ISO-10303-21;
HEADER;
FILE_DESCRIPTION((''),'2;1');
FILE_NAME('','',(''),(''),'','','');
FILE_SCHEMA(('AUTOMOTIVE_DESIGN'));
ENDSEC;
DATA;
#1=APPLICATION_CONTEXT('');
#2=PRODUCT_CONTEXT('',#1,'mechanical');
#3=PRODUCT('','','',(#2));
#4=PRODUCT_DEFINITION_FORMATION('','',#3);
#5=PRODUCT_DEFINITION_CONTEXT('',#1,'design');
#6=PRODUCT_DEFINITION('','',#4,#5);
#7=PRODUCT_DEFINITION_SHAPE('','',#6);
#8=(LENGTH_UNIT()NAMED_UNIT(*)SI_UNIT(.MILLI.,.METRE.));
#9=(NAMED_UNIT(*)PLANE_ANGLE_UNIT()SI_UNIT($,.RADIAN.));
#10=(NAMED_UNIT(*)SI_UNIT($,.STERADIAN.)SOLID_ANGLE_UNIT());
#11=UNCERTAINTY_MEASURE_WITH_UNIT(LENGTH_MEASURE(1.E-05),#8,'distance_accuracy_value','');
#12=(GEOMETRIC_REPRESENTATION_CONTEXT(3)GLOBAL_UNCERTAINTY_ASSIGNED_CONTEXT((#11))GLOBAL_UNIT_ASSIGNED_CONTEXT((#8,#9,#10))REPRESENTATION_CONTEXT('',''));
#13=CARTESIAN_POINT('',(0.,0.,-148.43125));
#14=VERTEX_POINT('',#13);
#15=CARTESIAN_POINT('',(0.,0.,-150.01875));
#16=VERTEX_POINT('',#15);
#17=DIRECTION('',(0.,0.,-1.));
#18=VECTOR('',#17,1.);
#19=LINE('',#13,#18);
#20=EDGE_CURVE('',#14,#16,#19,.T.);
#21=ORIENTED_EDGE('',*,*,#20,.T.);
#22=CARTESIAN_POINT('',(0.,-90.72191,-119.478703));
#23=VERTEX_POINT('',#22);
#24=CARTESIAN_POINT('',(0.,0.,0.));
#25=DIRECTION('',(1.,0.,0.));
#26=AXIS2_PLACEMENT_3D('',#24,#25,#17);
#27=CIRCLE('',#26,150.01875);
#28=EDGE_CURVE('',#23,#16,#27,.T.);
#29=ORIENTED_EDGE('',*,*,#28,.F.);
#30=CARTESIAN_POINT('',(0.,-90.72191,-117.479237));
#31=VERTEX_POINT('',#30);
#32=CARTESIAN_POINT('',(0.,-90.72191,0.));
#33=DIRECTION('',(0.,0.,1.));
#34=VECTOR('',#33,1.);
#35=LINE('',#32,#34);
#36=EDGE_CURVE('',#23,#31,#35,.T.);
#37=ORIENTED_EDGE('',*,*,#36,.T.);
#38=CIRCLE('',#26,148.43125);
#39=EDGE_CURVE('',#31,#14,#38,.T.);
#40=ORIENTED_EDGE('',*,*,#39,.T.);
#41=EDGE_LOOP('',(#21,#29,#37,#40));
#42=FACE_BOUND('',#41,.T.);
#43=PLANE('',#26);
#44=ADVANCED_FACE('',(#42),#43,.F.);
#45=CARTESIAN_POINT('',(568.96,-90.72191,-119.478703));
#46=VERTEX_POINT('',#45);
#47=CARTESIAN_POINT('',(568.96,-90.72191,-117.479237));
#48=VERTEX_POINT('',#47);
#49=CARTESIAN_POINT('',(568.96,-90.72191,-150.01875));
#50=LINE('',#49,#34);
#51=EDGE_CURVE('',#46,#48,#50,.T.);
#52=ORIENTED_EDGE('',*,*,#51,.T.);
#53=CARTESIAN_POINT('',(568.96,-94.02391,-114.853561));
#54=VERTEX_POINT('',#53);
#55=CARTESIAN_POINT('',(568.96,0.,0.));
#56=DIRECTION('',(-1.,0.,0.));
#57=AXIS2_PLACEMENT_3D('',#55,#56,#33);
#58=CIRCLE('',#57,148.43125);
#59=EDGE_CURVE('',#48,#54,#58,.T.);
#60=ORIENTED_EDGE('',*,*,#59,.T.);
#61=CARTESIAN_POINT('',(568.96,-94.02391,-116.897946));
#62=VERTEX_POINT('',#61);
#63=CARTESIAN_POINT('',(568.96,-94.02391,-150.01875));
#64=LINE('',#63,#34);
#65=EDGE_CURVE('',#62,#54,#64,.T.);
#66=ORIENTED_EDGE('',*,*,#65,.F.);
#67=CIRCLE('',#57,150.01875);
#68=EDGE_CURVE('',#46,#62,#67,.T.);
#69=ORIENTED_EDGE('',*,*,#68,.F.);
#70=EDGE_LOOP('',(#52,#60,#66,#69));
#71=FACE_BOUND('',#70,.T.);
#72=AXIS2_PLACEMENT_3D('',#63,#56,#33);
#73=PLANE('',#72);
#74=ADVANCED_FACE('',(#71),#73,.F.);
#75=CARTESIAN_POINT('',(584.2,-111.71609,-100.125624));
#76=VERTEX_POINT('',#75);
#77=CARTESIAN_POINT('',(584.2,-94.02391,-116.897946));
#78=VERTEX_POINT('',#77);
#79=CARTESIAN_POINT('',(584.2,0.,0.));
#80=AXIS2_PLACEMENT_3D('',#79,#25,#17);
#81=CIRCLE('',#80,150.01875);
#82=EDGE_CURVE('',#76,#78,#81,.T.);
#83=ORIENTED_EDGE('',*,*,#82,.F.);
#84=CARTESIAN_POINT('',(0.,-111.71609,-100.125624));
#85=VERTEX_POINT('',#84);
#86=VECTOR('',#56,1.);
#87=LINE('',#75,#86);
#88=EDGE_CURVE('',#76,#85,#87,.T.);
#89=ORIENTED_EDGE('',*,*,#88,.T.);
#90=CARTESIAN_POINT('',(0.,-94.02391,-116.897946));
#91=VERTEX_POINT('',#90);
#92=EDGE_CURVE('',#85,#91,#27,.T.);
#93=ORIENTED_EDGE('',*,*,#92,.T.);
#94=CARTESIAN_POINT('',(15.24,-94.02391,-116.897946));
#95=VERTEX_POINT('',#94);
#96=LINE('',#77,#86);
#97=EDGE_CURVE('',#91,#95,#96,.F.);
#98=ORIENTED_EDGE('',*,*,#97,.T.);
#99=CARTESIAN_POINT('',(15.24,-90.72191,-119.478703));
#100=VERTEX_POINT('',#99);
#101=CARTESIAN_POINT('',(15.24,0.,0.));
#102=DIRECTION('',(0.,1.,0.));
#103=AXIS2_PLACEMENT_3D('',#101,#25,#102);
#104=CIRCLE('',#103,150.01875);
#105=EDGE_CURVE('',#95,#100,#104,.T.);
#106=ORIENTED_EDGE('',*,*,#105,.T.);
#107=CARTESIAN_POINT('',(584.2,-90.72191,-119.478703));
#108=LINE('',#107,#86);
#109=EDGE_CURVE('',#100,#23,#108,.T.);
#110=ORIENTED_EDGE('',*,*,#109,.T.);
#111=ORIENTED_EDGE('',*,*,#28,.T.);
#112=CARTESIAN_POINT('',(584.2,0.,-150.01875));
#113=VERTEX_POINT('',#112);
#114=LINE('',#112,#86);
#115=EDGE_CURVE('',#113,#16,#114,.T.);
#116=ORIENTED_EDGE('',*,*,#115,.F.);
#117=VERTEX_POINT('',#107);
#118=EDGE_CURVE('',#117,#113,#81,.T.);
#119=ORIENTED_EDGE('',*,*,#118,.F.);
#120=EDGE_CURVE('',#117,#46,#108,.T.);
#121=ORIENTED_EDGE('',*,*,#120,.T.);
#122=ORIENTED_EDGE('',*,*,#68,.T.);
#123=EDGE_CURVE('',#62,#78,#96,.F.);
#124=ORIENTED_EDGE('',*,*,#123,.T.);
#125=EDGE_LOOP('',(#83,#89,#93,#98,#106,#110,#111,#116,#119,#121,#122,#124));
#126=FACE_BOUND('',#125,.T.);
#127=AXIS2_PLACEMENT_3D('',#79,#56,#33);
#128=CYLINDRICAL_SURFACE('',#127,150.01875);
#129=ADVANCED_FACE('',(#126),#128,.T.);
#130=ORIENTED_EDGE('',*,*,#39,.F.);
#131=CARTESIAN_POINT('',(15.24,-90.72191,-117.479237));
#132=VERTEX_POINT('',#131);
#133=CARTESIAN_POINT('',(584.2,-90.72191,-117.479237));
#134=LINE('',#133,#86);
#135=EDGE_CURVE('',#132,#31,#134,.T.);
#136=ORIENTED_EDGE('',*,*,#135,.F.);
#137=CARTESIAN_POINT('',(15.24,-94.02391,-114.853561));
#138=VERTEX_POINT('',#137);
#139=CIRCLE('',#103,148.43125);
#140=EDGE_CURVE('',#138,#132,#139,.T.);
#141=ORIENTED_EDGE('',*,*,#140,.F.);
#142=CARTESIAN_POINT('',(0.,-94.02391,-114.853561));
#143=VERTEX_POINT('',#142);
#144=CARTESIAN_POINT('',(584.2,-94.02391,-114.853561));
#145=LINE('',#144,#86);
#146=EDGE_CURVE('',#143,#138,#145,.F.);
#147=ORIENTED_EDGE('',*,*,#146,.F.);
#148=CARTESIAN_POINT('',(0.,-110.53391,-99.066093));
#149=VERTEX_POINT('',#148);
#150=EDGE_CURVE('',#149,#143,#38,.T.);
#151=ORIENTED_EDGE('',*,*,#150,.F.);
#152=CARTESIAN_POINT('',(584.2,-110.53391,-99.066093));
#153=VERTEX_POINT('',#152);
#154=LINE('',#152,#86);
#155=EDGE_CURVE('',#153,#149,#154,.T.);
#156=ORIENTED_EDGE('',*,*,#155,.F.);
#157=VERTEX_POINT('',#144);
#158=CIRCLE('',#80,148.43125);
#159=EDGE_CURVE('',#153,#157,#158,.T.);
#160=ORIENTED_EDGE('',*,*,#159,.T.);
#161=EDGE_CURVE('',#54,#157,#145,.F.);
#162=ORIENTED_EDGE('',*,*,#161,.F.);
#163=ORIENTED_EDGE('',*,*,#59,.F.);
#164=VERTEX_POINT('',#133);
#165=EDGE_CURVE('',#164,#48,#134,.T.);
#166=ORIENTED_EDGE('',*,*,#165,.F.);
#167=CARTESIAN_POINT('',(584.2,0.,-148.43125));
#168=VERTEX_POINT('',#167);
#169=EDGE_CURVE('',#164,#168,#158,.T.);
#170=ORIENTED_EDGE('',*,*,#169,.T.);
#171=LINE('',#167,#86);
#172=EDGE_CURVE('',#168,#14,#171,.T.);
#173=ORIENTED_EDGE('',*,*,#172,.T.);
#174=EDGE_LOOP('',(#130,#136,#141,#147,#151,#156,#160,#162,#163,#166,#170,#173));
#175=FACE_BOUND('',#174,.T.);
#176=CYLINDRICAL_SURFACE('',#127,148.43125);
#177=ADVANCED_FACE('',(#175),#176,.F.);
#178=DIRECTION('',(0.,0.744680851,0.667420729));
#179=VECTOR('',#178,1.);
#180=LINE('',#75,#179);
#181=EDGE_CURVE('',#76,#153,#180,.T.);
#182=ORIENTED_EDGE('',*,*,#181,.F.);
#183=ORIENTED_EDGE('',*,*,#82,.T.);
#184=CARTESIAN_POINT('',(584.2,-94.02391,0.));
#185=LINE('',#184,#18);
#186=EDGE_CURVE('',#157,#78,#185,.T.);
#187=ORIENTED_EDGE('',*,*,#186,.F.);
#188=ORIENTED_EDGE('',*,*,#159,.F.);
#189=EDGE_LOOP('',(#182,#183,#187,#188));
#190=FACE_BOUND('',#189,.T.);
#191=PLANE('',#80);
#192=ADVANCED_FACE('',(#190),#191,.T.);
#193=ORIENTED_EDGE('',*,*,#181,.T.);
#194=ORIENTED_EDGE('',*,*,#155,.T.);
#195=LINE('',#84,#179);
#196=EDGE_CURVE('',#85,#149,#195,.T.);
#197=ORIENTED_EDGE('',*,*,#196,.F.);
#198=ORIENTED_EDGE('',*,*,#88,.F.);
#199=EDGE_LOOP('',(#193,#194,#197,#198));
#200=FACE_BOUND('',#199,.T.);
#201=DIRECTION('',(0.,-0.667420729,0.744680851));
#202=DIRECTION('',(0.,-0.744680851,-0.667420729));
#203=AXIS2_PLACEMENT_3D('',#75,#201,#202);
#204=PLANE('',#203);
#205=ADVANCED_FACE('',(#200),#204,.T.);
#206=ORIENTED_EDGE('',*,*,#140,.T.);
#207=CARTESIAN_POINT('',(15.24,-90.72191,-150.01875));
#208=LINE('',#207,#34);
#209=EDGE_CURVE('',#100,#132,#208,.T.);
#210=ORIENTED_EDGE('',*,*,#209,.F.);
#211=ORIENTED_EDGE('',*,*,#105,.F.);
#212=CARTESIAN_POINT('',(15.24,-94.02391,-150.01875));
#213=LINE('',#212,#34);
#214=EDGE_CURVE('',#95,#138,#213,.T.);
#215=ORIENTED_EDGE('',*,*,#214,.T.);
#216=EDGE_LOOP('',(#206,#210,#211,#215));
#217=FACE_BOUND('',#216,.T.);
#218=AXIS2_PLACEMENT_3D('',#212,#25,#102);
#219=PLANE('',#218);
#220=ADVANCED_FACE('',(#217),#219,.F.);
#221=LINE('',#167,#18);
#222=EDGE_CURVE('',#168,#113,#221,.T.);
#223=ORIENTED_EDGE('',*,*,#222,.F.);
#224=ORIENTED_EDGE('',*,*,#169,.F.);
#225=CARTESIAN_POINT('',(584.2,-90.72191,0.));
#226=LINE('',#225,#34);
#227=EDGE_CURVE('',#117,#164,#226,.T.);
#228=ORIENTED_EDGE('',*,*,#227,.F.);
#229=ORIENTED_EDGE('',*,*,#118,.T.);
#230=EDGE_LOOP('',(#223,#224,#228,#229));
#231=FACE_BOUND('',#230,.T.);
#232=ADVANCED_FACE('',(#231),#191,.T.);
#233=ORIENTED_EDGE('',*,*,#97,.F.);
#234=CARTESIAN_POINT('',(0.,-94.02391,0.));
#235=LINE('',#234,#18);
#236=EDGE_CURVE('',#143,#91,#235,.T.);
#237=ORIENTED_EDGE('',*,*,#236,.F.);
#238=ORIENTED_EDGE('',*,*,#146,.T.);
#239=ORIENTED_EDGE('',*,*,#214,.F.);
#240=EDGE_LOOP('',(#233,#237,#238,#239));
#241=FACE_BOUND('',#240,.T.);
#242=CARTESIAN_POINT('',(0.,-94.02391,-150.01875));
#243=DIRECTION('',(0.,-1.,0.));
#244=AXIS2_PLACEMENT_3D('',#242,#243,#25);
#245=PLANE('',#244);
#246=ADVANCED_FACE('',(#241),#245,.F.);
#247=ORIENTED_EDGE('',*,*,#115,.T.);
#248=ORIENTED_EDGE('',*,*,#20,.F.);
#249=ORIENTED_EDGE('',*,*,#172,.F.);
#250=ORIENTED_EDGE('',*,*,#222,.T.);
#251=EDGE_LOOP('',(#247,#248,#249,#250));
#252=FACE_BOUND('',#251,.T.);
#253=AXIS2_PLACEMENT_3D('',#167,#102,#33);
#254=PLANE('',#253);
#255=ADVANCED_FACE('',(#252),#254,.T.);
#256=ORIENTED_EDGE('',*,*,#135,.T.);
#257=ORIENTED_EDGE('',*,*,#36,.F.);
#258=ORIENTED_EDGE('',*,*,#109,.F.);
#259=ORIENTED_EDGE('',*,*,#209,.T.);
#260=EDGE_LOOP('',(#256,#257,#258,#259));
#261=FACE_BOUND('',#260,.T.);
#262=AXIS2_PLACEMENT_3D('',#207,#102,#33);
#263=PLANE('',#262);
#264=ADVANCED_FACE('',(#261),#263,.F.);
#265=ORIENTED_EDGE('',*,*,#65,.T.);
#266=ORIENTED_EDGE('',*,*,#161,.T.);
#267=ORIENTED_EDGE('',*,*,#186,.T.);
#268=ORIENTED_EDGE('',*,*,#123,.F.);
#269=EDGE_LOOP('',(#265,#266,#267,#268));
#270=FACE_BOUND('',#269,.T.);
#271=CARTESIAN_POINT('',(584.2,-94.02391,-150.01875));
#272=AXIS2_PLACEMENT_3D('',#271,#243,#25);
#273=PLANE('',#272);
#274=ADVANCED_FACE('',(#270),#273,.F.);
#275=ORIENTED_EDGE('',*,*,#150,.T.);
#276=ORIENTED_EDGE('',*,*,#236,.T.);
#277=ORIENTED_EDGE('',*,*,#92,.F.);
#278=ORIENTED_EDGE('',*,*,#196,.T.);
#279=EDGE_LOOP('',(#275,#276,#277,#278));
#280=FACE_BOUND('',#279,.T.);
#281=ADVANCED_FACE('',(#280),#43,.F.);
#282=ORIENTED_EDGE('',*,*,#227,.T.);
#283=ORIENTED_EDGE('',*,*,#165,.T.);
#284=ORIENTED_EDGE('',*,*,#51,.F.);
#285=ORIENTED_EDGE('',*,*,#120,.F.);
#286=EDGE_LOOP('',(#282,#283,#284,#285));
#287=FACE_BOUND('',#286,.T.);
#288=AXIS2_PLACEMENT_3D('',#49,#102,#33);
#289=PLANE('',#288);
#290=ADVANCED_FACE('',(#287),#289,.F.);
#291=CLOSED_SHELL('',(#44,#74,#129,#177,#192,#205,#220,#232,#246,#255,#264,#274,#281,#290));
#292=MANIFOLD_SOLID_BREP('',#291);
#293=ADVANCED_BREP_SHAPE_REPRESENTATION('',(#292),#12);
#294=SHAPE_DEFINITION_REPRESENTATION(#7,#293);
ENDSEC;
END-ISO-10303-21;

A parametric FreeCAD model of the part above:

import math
import FreeCAD as App
import Part
import Sketcher
Q = App.Units.Quantity

doc = App.newDocument("Part")
body = doc.addObject("PartDesign::Body", "Body")

# Sketch on YZ plane
sketch1 = body.newObject("Sketcher::SketchObject", "Sketch")
sketch1.AttachmentSupport = (doc.getObject("YZ_Plane"), [""])
sketch1.MapMode = "FlatFace"
sketch1.addGeometry([
    Part.ArcOfCircle(Part.Circle(App.Vector(0, 0, 0), App.Vector(0, 0, 1), 150.01875), math.radians(-138.131694), math.radians(-90)),
    Part.LineSegment(App.Vector(0, -150.01875, 0), App.Vector(0, -148.43125, 0)),
    Part.ArcOfCircle(Part.Circle(App.Vector(0, 0, 0), App.Vector(0, 0, 1), 148.43125), math.radians(-138.131694), math.radians(-90)),
    Part.LineSegment(App.Vector(-110.53391, -99.066093, 0), App.Vector(-111.71609, -100.125624, 0)),
], False)
sketch1.addConstraint([
    Sketcher.Constraint("Coincident", 0, 2, 1, 1),
    Sketcher.Constraint("Coincident", 1, 2, 2, 2),
    Sketcher.Constraint("Coincident", 2, 1, 3, 1),
    Sketcher.Constraint("Coincident", 3, 2, 0, 1),
    Sketcher.Constraint("Vertical", 1),
    Sketcher.Constraint("Coincident", 0, 3, -1, 1),
    Sketcher.Constraint("Coincident", 2, 3, -1, 1),
    Sketcher.Constraint("PointOnObject", 0, 2, -2),
    Sketcher.Constraint("Radius", 0, Q("5.90625 in")),
    Sketcher.Constraint("Radius", 2, Q("5.84375 in")),
    Sketcher.Constraint("DistanceX", 2, 1, -1, 1, 110.53391),
    Sketcher.Constraint("DistanceX", 3, 2, -1, 1, 111.71609),
])
pad1 = body.newObject("PartDesign::Pad", "Pad")
pad1.Profile = sketch1
pad1.Length = Q("23 in")

# Sketch on XY plane
sketch2 = body.newObject("Sketcher::SketchObject", "Sketch001")
sketch2.AttachmentSupport = (doc.getObject("XY_Plane"), [""])
sketch2.MapMode = "FlatFace"
sketch2.addGeometry([
    Part.LineSegment(App.Vector(0, -90.72191, 0), App.Vector(0, -94.02391, 0)),  # 0
    Part.LineSegment(App.Vector(0, -94.02391, 0), App.Vector(15.24, -94.02391, 0)),  # 1
    Part.LineSegment(App.Vector(15.24, -94.02391, 0), App.Vector(15.24, -90.72191, 0)),  # 2
    Part.LineSegment(App.Vector(15.24, -90.72191, 0), App.Vector(0, -90.72191, 0)),  # 3
    Part.LineSegment(App.Vector(568.96, -90.72191, 0), App.Vector(568.96, -94.02391, 0)),  # 4
    Part.LineSegment(App.Vector(568.96, -94.02391, 0), App.Vector(584.2, -94.02391, 0)),  # 5
    Part.LineSegment(App.Vector(584.2, -94.02391, 0), App.Vector(584.2, -90.72191, 0)),  # 6
    Part.LineSegment(App.Vector(584.2, -90.72191, 0), App.Vector(568.96, -90.72191, 0)),  # 7
], False)
sketch2.addConstraint([
    Sketcher.Constraint("Coincident", 0, 2, 1, 1),
    Sketcher.Constraint("Coincident", 1, 2, 2, 1),
    Sketcher.Constraint("Coincident", 2, 2, 3, 1),
    Sketcher.Constraint("Coincident", 3, 2, 0, 1),
    Sketcher.Constraint("Coincident", 4, 2, 5, 1),
    Sketcher.Constraint("Coincident", 5, 2, 6, 1),
    Sketcher.Constraint("Coincident", 6, 2, 7, 1),
    Sketcher.Constraint("Coincident", 7, 2, 4, 1),
    Sketcher.Constraint("Vertical", 0),
    Sketcher.Constraint("Horizontal", 1),
    Sketcher.Constraint("Vertical", 2),
    Sketcher.Constraint("Horizontal", 3),
    Sketcher.Constraint("Vertical", 4),
    Sketcher.Constraint("Horizontal", 5),
    Sketcher.Constraint("Vertical", 6),
    Sketcher.Constraint("Horizontal", 7),
    Sketcher.Constraint("PointOnObject", 0, 2, -2),
    Sketcher.Constraint("Horizontal", 1, 2, 4, 2),
    Sketcher.Constraint("Horizontal", 3, 2, 6, 2),
    Sketcher.Constraint("Equal", 3, 5),
    Sketcher.Constraint("DistanceX", 1, 1, 1, 2, Q("0.6 in")),
    Sketcher.Constraint("DistanceX", -1, 1, 5, 2, Q("23 in")),
    Sketcher.Constraint("DistanceY", 0, 2, 0, 1, Q("0.13 in")),
    Sketcher.Constraint("DistanceY", 0, 2, -1, 1, 94.02391),
])
pocket1 = body.newObject("PartDesign::Pocket", "Pocket")
pocket1.Profile = sketch2
pocket1.Type = "ThroughAll"

doc.recompute()
